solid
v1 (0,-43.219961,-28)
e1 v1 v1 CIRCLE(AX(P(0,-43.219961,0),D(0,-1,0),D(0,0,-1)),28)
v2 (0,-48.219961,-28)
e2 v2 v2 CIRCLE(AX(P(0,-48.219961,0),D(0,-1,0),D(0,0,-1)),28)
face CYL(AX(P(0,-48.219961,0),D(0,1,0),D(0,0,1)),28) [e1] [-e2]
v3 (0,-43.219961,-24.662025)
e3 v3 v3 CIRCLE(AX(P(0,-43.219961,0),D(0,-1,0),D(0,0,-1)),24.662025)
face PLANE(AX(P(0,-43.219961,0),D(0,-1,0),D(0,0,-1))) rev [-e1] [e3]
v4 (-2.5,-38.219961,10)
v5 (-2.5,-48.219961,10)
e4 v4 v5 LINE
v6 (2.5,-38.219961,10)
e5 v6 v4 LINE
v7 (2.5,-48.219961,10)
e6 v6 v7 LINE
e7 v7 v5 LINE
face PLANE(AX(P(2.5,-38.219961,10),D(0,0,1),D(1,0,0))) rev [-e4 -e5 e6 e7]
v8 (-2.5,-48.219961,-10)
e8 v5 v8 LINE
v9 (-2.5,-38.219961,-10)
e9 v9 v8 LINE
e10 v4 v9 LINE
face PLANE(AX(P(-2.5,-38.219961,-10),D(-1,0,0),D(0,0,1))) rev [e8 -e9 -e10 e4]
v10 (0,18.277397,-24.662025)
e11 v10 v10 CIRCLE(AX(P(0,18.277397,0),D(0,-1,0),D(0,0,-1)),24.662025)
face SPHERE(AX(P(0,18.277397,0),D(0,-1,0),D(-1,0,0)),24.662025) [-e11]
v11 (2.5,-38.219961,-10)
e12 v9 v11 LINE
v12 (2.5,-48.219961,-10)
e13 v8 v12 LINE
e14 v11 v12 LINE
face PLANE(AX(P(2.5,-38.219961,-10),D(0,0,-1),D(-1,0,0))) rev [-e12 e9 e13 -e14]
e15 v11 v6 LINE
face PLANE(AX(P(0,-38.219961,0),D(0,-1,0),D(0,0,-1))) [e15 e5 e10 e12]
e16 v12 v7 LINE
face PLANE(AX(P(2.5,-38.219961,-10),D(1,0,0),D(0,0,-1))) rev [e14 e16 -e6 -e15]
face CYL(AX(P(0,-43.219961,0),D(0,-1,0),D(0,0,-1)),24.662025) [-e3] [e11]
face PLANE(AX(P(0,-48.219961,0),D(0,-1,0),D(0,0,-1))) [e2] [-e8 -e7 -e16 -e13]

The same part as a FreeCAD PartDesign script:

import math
import FreeCAD as App
import Part
import Sketcher

V = App.Vector
Q = App.Units.Quantity


def add_polygon(sketch, points):
    """Adds a closed chain of lines whose ends are joined by coincident constraints."""
    first, n = sketch.GeometryCount, len(points)
    for a, b in zip(points, points[1:] + points[:1]):
        sketch.addGeometry(Part.LineSegment(App.Vector(*a, 0), App.Vector(*b, 0)), False)
    for i in range(n):
        sketch.addConstraint(Sketcher.Constraint("Coincident", first + i, 2, first + (i + 1) % n, 1))

doc = App.newDocument("Part")
body = doc.addObject("PartDesign::Body", "Body")

# Sketch on XY plane
sketch1 = body.newObject("Sketcher::SketchObject", "Sketch")
sketch1.AttachmentSupport = (doc.getObject("XY_Plane"), [""])
sketch1.MapMode = "FlatFace"
sketch1.addGeometry([
    Part.LineSegment(V(-24.662025, 18.277397, 0), V(-24.662025, -43.219961, 0)),
    Part.LineSegment(V(-24.662025, -43.219961, 0), V(0, -43.219961, 0)),
    Part.LineSegment(V(0, -43.219961, 0), V(0, 42.939422, 0)),
    Part.ArcOfCircle(Part.Circle(V(0, 18.277397, 0), V(0, 0, 1), 24.662025), math.radians(90), math.radians(180)),
], False)
sketch1.addConstraint([
    Sketcher.Constraint("Coincident", 0, 2, 1, 1),
    Sketcher.Constraint("Coincident", 1, 2, 2, 1),
    Sketcher.Constraint("Coincident", 2, 2, 3, 1),
    Sketcher.Constraint("Tangent", 3, 2, 0, 1),
    Sketcher.Constraint("Vertical", 0),
    Sketcher.Constraint("Horizontal", 1),
    Sketcher.Constraint("Vertical", 2),
    Sketcher.Constraint("PointOnObject", 3, 3, -2),
    Sketcher.Constraint("PointOnObject", 1, 2, -2),
    Sketcher.Constraint("Radius", 3, Q("24.662025 mm")),
    Sketcher.Constraint("DistanceY", 0, 2, 0, 1, Q("61.497358 mm")),
    Sketcher.Constraint("DistanceY", 0, 2, -1, 1, Q("43.219961 mm")),
])
revolution = body.newObject("PartDesign::Revolution", "Revolution")
revolution.Profile = sketch1
revolution.ReferenceAxis = (sketch1, ["V_Axis"])
revolution.Angle = 360

# Sketch on XZ plane
sketch2 = body.newObject("Sketcher::SketchObject", "Sketch001")
sketch2.AttachmentSupport = (doc.getObject("XZ_Plane"), [""])
sketch2.MapMode = "FlatFace"
sketch2.AttachmentOffset = App.Placement(V(0, 0, 43.219961), App.Rotation())
sketch2.addGeometry(Part.Circle(V(0, 0, 0), V(0, 0, 1), 28), False)
sketch2.addConstraint([
    Sketcher.Constraint("Coincident", 0, 3, -1, 1),
    Sketcher.Constraint("Diameter", 0, Q("56 mm")),
])
pad1 = body.newObject("PartDesign::Pad", "Pad")
pad1.Profile = sketch2
pad1.Length = 5

# Sketch on XZ plane
sketch3 = body.newObject("Sketcher::SketchObject", "Sketch002")
sketch3.AttachmentSupport = (doc.getObject("XZ_Plane"), [""])
sketch3.MapMode = "FlatFace"
sketch3.AttachmentOffset = App.Placement(V(0, 0, 48.219961), App.Rotation())
add_polygon(sketch3, [(-2.5, 10), (-2.5, -10), (2.5, -10), (2.5, 10)])  # lines 0-3
sketch3.addConstraint([
    Sketcher.Constraint("Vertical", 0),
    Sketcher.Constraint("Horizontal", 1),
    Sketcher.Constraint("Vertical", 2),
    Sketcher.Constraint("Horizontal", 3),
    Sketcher.Constraint("Symmetric", 0, 2, 2, 2, -1, 1),
    Sketcher.Constraint("DistanceX", 1, 1, 1, 2, Q("5 mm")),
    Sketcher.Constraint("DistanceY", 0, 2, 0, 1, Q("20 mm")),
])
pocket1 = body.newObject("PartDesign::Pocket", "Pocket")
pocket1.Profile = sketch3
pocket1.Length = 10

doc.recompute()
